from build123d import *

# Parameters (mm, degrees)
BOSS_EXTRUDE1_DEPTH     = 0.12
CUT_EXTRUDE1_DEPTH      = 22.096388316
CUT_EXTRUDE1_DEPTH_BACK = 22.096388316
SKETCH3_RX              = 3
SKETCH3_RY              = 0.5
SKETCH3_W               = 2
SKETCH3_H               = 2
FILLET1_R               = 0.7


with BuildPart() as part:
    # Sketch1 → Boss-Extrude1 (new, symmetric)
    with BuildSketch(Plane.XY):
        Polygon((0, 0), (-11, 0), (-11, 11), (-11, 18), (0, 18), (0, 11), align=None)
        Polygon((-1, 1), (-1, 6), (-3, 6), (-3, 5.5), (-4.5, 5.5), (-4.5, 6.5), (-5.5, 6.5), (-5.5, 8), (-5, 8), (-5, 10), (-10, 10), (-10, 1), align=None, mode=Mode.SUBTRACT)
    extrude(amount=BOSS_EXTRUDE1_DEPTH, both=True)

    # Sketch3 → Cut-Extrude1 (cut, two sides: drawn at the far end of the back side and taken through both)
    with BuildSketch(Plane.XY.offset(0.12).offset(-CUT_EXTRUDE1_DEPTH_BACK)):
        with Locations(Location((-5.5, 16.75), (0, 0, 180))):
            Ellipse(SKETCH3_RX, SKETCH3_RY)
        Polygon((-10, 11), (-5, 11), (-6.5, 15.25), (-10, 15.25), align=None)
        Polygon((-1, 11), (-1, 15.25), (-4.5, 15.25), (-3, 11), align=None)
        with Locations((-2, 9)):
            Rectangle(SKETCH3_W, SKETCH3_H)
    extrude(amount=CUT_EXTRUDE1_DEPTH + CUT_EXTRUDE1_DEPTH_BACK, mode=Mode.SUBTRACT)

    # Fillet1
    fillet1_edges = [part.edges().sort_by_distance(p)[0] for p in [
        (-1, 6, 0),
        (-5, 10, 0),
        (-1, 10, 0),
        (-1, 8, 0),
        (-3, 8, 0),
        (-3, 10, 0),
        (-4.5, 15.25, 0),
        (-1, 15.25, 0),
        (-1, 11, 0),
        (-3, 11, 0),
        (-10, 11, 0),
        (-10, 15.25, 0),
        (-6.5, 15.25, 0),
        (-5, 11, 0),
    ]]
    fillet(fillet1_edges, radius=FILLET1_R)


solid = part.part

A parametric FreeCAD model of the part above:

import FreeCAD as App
import Part
import Sketcher
Q = App.Units.Quantity


def edges_at(feature, points):
    """Names of the edges that pass closest to the given points."""
    edges = feature.Shape.Edges
    near = lambda p: min(range(len(edges)), key=lambda i: edges[i].distToShape(Part.Vertex(*p))[0])
    return sorted({f"Edge{near(p) + 1}" for p in points})

doc = App.newDocument("Part")
params = doc.addObject("Spreadsheet::Sheet", "Params")
for row, (alias, value) in enumerate([
    ("sketch1_width", "11 mm"),
    ("sketch1_width2", "9 mm"),
    ("sketch1_width3", "5 mm"),
    ("sketch1_width4", "1 mm"),
    ("sketch1_width5", "2 mm"),
    ("pad1_length", "0.24 mm"),
    ("sketch2_width", "5 mm"),
    ("sketch2_width2", "2 mm"),
    ("sketch2_height", "4.25 mm"),
    ("fillet_radius", "0.7 mm"),
], start=1):
    params.set(f"A{row}", alias)
    params.set(f"B{row}", "=" + value)
    params.setAlias(f"B{row}", alias)

body = doc.addObject("PartDesign::Body", "Body")

# Sketch on XY plane
sketch1 = body.newObject("Sketcher::SketchObject", "Sketch")
sketch1.AttachmentSupport = (doc.getObject("XY_Plane"), [""])
sketch1.MapMode = "FlatFace"
sketch1.addGeometry([
    Part.LineSegment(App.Vector(-11, 0, 0), App.Vector(0, 0, 0)),  # 0
    Part.LineSegment(App.Vector(0, 0, 0), App.Vector(0, 18, 0)),  # 1
    Part.LineSegment(App.Vector(0, 18, 0), App.Vector(-11, 18, 0)),  # 2
    Part.LineSegment(App.Vector(-11, 18, 0), App.Vector(-11, 0, 0)),  # 3
    Part.LineSegment(App.Vector(-1, 1, 0), App.Vector(-10, 1, 0)),  # 4
    Part.LineSegment(App.Vector(-10, 1, 0), App.Vector(-10, 10, 0)),  # 5
    Part.LineSegment(App.Vector(-10, 10, 0), App.Vector(-5, 10, 0)),  # 6
    Part.LineSegment(App.Vector(-5, 10, 0), App.Vector(-5, 8, 0)),  # 7
    Part.LineSegment(App.Vector(-5, 8, 0), App.Vector(-5.5, 8, 0)),  # 8
    Part.LineSegment(App.Vector(-5.5, 8, 0), App.Vector(-5.5, 6.5, 0)),  # 9
    Part.LineSegment(App.Vector(-5.5, 6.5, 0), App.Vector(-4.5, 6.5, 0)),  # 10
    Part.LineSegment(App.Vector(-4.5, 6.5, 0), App.Vector(-4.5, 5.5, 0)),  # 11
    Part.LineSegment(App.Vector(-4.5, 5.5, 0), App.Vector(-3, 5.5, 0)),  # 12
    Part.LineSegment(App.Vector(-3, 5.5, 0), App.Vector(-3, 6, 0)),  # 13
    Part.LineSegment(App.Vector(-3, 6, 0), App.Vector(-1, 6, 0)),  # 14
    Part.LineSegment(App.Vector(-1, 6, 0), App.Vector(-1, 1, 0)),  # 15
], False)
sketch1.addConstraint([
    Sketcher.Constraint("Coincident", 0, 2, 1, 1),
    Sketcher.Constraint("Coincident", 1, 2, 2, 1),
    Sketcher.Constraint("Coincident", 2, 2, 3, 1),
    Sketcher.Constraint("Coincident", 3, 2, 0, 1),
    Sketcher.Constraint("Coincident", 4, 2, 5, 1),
    Sketcher.Constraint("Coincident", 5, 2, 6, 1),
    Sketcher.Constraint("Coincident", 6, 2, 7, 1),
    Sketcher.Constraint("Coincident", 7, 2, 8, 1),
    Sketcher.Constraint("Coincident", 8, 2, 9, 1),
    Sketcher.Constraint("Coincident", 9, 2, 10, 1),
    Sketcher.Constraint("Coincident", 10, 2, 11, 1),
    Sketcher.Constraint("Coincident", 11, 2, 12, 1),
    Sketcher.Constraint("Coincident", 12, 2, 13, 1),
    Sketcher.Constraint("Coincident", 13, 2, 14, 1),
    Sketcher.Constraint("Coincident", 14, 2, 15, 1),
    Sketcher.Constraint("Coincident", 15, 2, 4, 1),
    Sketcher.Constraint("Horizontal", 0),
    Sketcher.Constraint("Vertical", 1),
    Sketcher.Constraint("Horizontal", 2),
    Sketcher.Constraint("Vertical", 3),
    Sketcher.Constraint("Horizontal", 4),
    Sketcher.Constraint("Vertical", 5),
    Sketcher.Constraint("Horizontal", 6),
    Sketcher.Constraint("Vertical", 7),
    Sketcher.Constraint("Horizontal", 8),
    Sketcher.Constraint("Vertical", 9),
    Sketcher.Constraint("Horizontal", 10),
    Sketcher.Constraint("Vertical", 11),
    Sketcher.Constraint("Horizontal", 12),
    Sketcher.Constraint("Vertical", 13),
    Sketcher.Constraint("Horizontal", 14),
    Sketcher.Constraint("Vertical", 15),
    Sketcher.Constraint("Coincident", 0, 2, -1, 1),
    Sketcher.Constraint("Equal", 4, 5),
    Sketcher.Constraint("Equal", 14, 7),
    Sketcher.Constraint("Equal", 12, 9),
    Sketcher.Constraint("Equal", 10, 11),
    Sketcher.Constraint("Equal", 8, 13),
    Sketcher.Constraint("DistanceX", 0, 1, 0, 2, Q("11 mm")),
    Sketcher.Constraint("DistanceX", 4, 2, 4, 1, Q("9 mm")),
    Sketcher.Constraint("DistanceX", 6, 1, 6, 2, Q("5 mm")),
    Sketcher.Constraint("DistanceX", 10, 1, 10, 2, Q("1 mm")),
    Sketcher.Constraint("DistanceX", 14, 1, 14, 2, Q("2 mm")),
    Sketcher.Constraint("DistanceY", 1, 1, 1, 2, Q("18 mm")),
    Sketcher.Constraint("DistanceX", 8, 2, 8, 1, Q("0.5 mm")),
    Sketcher.Constraint("DistanceX", 4, 2, -1, 1, Q("10 mm")),
    Sketcher.Constraint("DistanceY", -1, 1, 4, 2, Q("1 mm")),
])
sketch1.setExpression("Constraints[38]", "Params.sketch1_width")
sketch1.setExpression("Constraints[39]", "Params.sketch1_width2")
sketch1.setExpression("Constraints[40]", "Params.sketch1_width3")
sketch1.setExpression("Constraints[41]", "Params.sketch1_width4")
sketch1.setExpression("Constraints[42]", "Params.sketch1_width5")
pad1 = body.newObject("PartDesign::Pad", "Pad")
pad1.Profile = sketch1
pad1.setExpression("Length", "Params.pad1_length")
pad1.Midplane = True

# Sketch on XY plane
sketch2 = body.newObject("Sketcher::SketchObject", "Sketch001")
sketch2.AttachmentSupport = (doc.getObject("XY_Plane"), [""])
sketch2.MapMode = "FlatFace"
sketch2.AttachmentOffset = App.Placement(App.Vector(0, 0, 0.12), App.Rotation())
sketch2.addGeometry([
    Part.Ellipse(App.Vector(-8.5, 16.75, 0), App.Vector(-5.5, 16.25, 0), App.Vector(-5.5, 16.75, 0)),  # 0
    Part.LineSegment(App.Vector(-10, 11, 0), App.Vector(-5, 11, 0)),  # 1
    Part.LineSegment(App.Vector(-5, 11, 0), App.Vector(-6.5, 15.25, 0)),  # 2
    Part.LineSegment(App.Vector(-6.5, 15.25, 0), App.Vector(-10, 15.25, 0)),  # 3
    Part.LineSegment(App.Vector(-10, 15.25, 0), App.Vector(-10, 11, 0)),  # 4
    Part.LineSegment(App.Vector(-1, 11, 0), App.Vector(-1, 15.25, 0)),  # 5
    Part.LineSegment(App.Vector(-1, 15.25, 0), App.Vector(-4.5, 15.25, 0)),  # 6
    Part.LineSegment(App.Vector(-4.5, 15.25, 0), App.Vector(-3, 11, 0)),  # 7
    Part.LineSegment(App.Vector(-3, 11, 0), App.Vector(-1, 11, 0)),  # 8
    Part.LineSegment(App.Vector(-3, 10, 0), App.Vector(-3, 8, 0)),  # 9
    Part.LineSegment(App.Vector(-3, 8, 0), App.Vector(-1, 8, 0)),  # 10
    Part.LineSegment(App.Vector(-1, 8, 0), App.Vector(-1, 10, 0)),  # 11
    Part.LineSegment(App.Vector(-1, 10, 0), App.Vector(-3, 10, 0)),  # 12
], False)
sketch2.addConstraint([
    Sketcher.Constraint("Block", 0),
    Sketcher.Constraint("Coincident", 1, 2, 2, 1),
    Sketcher.Constraint("Coincident", 2, 2, 3, 1),
    Sketcher.Constraint("Coincident", 3, 2, 4, 1),
    Sketcher.Constraint("Coincident", 4, 2, 1, 1),
    Sketcher.Constraint("Coincident", 5, 2, 6, 1),
    Sketcher.Constraint("Coincident", 6, 2, 7, 1),
    Sketcher.Constraint("Coincident", 7, 2, 8, 1),
    Sketcher.Constraint("Coincident", 8, 2, 5, 1),
    Sketcher.Constraint("Coincident", 9, 2, 10, 1),
    Sketcher.Constraint("Coincident", 10, 2, 11, 1),
    Sketcher.Constraint("Coincident", 11, 2, 12, 1),
    Sketcher.Constraint("Coincident", 12, 2, 9, 1),
    Sketcher.Constraint("Horizontal", 1),
    Sketcher.Constraint("Horizontal", 3),
    Sketcher.Constraint("Vertical", 4),
    Sketcher.Constraint("Vertical", 5),
    Sketcher.Constraint("Horizontal", 6),
    Sketcher.Constraint("Horizontal", 8),
    Sketcher.Constraint("Vertical", 9),
    Sketcher.Constraint("Horizontal", 10),
    Sketcher.Constraint("Vertical", 11),
    Sketcher.Constraint("Horizontal", 12),
    Sketcher.Constraint("Parallel", 2, 7),
    Sketcher.Constraint("Horizontal", 3, 2, 5, 2),
    Sketcher.Constraint("Horizontal", 4, 2, 7, 2),
    Sketcher.Constraint("Vertical", 7, 2, 9, 2),
    Sketcher.Constraint("Vertical", 8, 2, 10, 2),
    Sketcher.Constraint("Equal", 3, 6),
    Sketcher.Constraint("Equal", 12, 9),
    Sketcher.Constraint("DistanceX", 1, 1, 1, 2, Q("5 mm")),
    Sketcher.Constraint("DistanceX", 8, 1, 8, 2, Q("2 mm")),
    Sketcher.Constraint("DistanceX", 1, 2, -1, 1, Q("5 mm")),
    Sketcher.Constraint("DistanceY", -1, 1, 1, 2, Q("11 mm")),
    Sketcher.Constraint("DistanceX", 5, 2, -1, 1, Q("1 mm")),
    Sketcher.Constraint("DistanceY", -1, 1, 9, 2, Q("8 mm")),
    Sketcher.Constraint("DistanceY", 4, 2, 4, 1, Q("4.25 mm")),
])
sketch2.setExpression("Constraints[30]", "Params.sketch2_width")
sketch2.setExpression("Constraints[31]", "Params.sketch2_width2")
sketch2.setExpression("Constraints[36]", "Params.sketch2_height")
pocket1 = body.newObject("PartDesign::Pocket", "Pocket")
pocket1.Profile = sketch2
pocket1.Type = "ThroughAll"
pocket1.Midplane = True
doc.recompute()

fillet = body.newObject("PartDesign::Fillet", "Fillet")
fillet.Base = (pocket1, edges_at(pocket1, [
    (-1, 6, 0),
    (-5, 10, 0),
    (-1, 10, 0),
    (-1, 8, 0),
    (-3, 8, 0),
    (-3, 10, 0),
    (-4.5, 15.25, 0),
    (-1, 15.25, 0),
    (-1, 11, 0),
    (-3, 11, 0),
    (-10, 11, 0),
    (-10, 15.25, 0),
    (-6.5, 15.25, 0),
    (-5, 11, 0),
]))
fillet.setExpression("Radius", "Params.fillet_radius")

doc.recompute()
